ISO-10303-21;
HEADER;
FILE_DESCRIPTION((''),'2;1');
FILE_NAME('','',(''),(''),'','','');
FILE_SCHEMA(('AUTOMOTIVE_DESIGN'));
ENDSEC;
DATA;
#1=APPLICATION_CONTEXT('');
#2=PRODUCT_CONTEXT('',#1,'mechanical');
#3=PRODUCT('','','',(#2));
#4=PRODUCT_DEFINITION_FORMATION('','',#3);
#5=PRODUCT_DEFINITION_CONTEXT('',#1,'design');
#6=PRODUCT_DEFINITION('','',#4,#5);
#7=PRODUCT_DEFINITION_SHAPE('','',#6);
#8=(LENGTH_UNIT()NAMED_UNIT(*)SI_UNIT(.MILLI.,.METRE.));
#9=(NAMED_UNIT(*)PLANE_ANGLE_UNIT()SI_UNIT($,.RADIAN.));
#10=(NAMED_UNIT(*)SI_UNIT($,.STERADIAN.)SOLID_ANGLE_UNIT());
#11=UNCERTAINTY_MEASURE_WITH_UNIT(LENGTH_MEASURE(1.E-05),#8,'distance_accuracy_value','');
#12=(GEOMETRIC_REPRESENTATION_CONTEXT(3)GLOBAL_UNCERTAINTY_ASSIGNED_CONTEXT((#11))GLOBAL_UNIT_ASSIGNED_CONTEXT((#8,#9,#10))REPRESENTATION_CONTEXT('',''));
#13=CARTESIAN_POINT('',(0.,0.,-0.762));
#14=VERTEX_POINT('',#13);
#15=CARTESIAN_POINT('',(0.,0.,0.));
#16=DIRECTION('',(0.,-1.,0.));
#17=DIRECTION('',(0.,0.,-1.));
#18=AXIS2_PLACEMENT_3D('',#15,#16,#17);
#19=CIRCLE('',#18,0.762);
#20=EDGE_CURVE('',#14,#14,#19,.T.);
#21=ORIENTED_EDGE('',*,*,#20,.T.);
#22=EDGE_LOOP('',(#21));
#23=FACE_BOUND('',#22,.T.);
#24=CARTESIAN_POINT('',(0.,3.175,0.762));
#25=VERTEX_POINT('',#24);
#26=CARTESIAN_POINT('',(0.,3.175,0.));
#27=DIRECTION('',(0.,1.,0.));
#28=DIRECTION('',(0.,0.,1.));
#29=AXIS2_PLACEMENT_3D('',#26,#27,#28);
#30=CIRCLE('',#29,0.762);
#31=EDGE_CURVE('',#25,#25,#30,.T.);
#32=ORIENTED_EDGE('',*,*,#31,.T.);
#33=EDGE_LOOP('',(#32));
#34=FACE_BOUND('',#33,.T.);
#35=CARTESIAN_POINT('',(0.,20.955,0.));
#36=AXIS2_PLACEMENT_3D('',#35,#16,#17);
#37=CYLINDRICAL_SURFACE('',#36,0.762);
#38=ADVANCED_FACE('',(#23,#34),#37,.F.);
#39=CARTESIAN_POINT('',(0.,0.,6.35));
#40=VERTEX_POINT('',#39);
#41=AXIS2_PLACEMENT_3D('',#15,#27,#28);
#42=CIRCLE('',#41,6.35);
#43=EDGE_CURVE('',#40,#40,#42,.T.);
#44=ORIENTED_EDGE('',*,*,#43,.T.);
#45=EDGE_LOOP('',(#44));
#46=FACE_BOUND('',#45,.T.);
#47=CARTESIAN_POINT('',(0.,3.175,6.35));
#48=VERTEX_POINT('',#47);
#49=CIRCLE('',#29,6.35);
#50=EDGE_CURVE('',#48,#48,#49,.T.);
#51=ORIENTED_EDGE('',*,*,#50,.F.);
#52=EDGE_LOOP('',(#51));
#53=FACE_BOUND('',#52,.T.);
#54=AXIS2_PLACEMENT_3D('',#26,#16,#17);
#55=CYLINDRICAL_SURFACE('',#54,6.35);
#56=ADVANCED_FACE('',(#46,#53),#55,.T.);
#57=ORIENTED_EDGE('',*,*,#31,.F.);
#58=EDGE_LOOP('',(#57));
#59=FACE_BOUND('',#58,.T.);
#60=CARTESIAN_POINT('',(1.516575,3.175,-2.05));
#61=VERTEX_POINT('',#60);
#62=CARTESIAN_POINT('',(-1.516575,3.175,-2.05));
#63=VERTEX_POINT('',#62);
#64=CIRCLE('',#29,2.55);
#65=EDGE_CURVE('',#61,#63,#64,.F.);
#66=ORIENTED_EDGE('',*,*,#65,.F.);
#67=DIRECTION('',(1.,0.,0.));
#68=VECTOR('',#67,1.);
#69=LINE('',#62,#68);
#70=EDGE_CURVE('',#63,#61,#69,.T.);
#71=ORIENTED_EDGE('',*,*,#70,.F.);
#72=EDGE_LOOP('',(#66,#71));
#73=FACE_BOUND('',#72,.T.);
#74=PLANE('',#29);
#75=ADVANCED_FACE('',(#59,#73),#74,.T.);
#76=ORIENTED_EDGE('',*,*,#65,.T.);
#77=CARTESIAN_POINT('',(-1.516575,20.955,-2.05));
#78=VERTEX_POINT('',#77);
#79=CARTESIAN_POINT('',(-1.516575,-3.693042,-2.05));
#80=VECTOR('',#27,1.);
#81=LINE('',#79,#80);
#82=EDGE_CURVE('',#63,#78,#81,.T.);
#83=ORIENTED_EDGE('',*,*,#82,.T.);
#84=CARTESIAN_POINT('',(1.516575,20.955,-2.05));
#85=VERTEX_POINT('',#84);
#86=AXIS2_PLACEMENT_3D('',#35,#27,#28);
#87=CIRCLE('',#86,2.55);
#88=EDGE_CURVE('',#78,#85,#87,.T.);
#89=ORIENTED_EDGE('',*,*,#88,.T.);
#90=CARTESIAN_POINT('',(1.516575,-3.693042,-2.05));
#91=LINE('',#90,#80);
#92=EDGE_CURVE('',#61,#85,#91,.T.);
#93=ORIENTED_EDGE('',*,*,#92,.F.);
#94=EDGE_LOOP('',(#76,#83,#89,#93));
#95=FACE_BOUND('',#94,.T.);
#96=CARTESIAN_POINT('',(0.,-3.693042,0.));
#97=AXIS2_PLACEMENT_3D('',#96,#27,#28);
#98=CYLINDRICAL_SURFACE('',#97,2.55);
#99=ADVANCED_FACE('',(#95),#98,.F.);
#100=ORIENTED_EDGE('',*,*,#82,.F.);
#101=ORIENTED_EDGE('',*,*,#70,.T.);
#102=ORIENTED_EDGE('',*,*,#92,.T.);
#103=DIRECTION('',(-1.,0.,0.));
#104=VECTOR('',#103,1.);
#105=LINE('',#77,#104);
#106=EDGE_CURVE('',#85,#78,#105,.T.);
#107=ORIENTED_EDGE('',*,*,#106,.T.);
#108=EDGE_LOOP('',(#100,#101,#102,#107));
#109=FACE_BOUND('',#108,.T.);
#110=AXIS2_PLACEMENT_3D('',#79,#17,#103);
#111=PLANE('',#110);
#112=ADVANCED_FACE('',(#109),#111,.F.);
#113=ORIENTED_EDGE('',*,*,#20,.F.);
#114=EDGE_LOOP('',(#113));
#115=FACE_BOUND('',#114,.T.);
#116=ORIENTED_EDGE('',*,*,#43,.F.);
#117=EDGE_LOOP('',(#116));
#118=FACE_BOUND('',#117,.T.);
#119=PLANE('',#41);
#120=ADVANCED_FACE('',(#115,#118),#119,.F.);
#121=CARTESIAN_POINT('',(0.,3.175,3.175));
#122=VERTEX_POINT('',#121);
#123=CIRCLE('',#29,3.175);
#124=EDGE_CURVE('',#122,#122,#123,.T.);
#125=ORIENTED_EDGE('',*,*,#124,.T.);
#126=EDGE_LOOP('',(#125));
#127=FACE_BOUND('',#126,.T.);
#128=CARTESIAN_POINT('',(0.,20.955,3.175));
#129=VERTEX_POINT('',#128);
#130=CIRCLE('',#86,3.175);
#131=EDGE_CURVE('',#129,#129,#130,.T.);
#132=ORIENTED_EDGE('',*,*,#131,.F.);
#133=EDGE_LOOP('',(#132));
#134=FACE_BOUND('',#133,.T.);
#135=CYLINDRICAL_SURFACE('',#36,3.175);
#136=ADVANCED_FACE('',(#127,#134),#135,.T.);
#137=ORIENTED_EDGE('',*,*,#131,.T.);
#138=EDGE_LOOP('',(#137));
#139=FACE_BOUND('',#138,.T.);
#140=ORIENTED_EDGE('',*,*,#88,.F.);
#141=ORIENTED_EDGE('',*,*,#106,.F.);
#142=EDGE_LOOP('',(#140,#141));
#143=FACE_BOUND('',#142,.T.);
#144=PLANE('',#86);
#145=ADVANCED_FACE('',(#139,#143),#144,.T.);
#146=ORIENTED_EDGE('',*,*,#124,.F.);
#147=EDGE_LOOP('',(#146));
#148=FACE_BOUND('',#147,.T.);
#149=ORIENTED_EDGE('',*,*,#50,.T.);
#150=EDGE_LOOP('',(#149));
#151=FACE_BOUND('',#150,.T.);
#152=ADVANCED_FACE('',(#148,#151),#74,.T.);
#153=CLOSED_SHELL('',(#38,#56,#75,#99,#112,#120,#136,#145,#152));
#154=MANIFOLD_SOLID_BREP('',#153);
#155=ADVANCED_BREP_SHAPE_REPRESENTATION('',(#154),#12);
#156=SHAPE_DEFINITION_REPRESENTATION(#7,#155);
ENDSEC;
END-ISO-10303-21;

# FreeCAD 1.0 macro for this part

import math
import FreeCAD as App
import Part
import Sketcher
from FreeCAD import Vector
Q = App.Units.Quantity

doc = App.newDocument("Part")
body = doc.addObject("PartDesign::Body", "Body")

# Sketch on XZ plane
sketch1 = body.newObject("Sketcher::SketchObject", "Sketch")
sketch1.AttachmentSupport = (doc.getObject("XZ_Plane"), [""])
sketch1.MapMode = "FlatFace"
sketch1.addGeometry(Part.Circle(Vector(0, 0, 0), Vector(0, 0, 1), 6), False)
sketch1.addConstraint(Sketcher.Constraint("Coincident", 0, 3, -1, 1))
sketch1.addConstraint(Sketcher.Constraint("Diameter", 0, Q("0.5 in")))
pad1 = body.newObject("PartDesign::Pad", "Pad")
pad1.Profile = sketch1
pad1.Length = Q("0.125 in")
pad1.Reversed = True

# Sketch on XZ plane
sketch2 = body.newObject("Sketcher::SketchObject", "Sketch001")
sketch2.AttachmentSupport = (doc.getObject("XZ_Plane"), [""])
sketch2.MapMode = "FlatFace"
sketch2.AttachmentOffset = App.Placement(Vector(0, 0, -0.125 * 25.4), App.Rotation())
sketch2.addGeometry(Part.Circle(Vector(0, 0, 0), Vector(0, 0, 1), 3.2), False)
sketch2.addConstraint(Sketcher.Constraint("Coincident", 0, 3, -1, 1))
sketch2.addConstraint(Sketcher.Constraint("Diameter", 0, Q("0.25 in")))
pad2 = body.newObject("PartDesign::Pad", "Pad001")
pad2.Profile = sketch2
pad2.Length = Q("0.7 in")
pad2.Reversed = True

# Sketch on XZ plane
sketch3 = body.newObject("Sketcher::SketchObject", "Sketch002")
sketch3.AttachmentSupport = (doc.getObject("XZ_Plane"), [""])
sketch3.MapMode = "FlatFace"
sketch3.AttachmentOffset = App.Placement(Vector(0, 0, -0.825 * 25.4), App.Rotation())
sketch3.addGeometry(Part.LineSegment(Vector(1.5, -2, 0), Vector(-1.5, -2, 0)), False)
sketch3.addGeometry(Part.ArcOfCircle(Part.Circle(Vector(0, 0, 0), Vector(0, 0, 1), 2.5), math.radians(-54), math.radians(234)), False)
sketch3.addConstraint(Sketcher.Constraint("Coincident", 0, 1, 1, 1))
sketch3.addConstraint(Sketcher.Constraint("Coincident", 1, 2, 0, 2))
sketch3.addConstraint(Sketcher.Constraint("Horizontal", 0))
sketch3.addConstraint(Sketcher.Constraint("Coincident", 1, 3, -1, 1))
sketch3.addConstraint(Sketcher.Constraint("Radius", 1, Q("2.55 mm")))
sketch3.addConstraint(Sketcher.Constraint("DistanceX", 0, 2, 0, 1, Q("3.03315 mm")))
pocket1 = body.newObject("PartDesign::Pocket", "Pocket")
pocket1.Profile = sketch3
pocket1.Length = Q("0.7 in")
pocket1.Reversed = True

# Sketch on XZ plane
sketch4 = body.newObject("Sketcher::SketchObject", "Sketch003")
sketch4.AttachmentSupport = (doc.getObject("XZ_Plane"), [""])
sketch4.MapMode = "FlatFace"
sketch4.addGeometry(Part.Circle(Vector(0, 0, 0), Vector(0, 0, 1), 0.8), False)
sketch4.addConstraint(Sketcher.Constraint("Coincident", 0, 3, -1, 1))
sketch4.addConstraint(Sketcher.Constraint("Diameter", 0, Q("0.06 in")))
pocket2 = body.newObject("PartDesign::Pocket", "Pocket001")
pocket2.Profile = sketch4
pocket2.Type = "ThroughAll"

doc.recompute()
